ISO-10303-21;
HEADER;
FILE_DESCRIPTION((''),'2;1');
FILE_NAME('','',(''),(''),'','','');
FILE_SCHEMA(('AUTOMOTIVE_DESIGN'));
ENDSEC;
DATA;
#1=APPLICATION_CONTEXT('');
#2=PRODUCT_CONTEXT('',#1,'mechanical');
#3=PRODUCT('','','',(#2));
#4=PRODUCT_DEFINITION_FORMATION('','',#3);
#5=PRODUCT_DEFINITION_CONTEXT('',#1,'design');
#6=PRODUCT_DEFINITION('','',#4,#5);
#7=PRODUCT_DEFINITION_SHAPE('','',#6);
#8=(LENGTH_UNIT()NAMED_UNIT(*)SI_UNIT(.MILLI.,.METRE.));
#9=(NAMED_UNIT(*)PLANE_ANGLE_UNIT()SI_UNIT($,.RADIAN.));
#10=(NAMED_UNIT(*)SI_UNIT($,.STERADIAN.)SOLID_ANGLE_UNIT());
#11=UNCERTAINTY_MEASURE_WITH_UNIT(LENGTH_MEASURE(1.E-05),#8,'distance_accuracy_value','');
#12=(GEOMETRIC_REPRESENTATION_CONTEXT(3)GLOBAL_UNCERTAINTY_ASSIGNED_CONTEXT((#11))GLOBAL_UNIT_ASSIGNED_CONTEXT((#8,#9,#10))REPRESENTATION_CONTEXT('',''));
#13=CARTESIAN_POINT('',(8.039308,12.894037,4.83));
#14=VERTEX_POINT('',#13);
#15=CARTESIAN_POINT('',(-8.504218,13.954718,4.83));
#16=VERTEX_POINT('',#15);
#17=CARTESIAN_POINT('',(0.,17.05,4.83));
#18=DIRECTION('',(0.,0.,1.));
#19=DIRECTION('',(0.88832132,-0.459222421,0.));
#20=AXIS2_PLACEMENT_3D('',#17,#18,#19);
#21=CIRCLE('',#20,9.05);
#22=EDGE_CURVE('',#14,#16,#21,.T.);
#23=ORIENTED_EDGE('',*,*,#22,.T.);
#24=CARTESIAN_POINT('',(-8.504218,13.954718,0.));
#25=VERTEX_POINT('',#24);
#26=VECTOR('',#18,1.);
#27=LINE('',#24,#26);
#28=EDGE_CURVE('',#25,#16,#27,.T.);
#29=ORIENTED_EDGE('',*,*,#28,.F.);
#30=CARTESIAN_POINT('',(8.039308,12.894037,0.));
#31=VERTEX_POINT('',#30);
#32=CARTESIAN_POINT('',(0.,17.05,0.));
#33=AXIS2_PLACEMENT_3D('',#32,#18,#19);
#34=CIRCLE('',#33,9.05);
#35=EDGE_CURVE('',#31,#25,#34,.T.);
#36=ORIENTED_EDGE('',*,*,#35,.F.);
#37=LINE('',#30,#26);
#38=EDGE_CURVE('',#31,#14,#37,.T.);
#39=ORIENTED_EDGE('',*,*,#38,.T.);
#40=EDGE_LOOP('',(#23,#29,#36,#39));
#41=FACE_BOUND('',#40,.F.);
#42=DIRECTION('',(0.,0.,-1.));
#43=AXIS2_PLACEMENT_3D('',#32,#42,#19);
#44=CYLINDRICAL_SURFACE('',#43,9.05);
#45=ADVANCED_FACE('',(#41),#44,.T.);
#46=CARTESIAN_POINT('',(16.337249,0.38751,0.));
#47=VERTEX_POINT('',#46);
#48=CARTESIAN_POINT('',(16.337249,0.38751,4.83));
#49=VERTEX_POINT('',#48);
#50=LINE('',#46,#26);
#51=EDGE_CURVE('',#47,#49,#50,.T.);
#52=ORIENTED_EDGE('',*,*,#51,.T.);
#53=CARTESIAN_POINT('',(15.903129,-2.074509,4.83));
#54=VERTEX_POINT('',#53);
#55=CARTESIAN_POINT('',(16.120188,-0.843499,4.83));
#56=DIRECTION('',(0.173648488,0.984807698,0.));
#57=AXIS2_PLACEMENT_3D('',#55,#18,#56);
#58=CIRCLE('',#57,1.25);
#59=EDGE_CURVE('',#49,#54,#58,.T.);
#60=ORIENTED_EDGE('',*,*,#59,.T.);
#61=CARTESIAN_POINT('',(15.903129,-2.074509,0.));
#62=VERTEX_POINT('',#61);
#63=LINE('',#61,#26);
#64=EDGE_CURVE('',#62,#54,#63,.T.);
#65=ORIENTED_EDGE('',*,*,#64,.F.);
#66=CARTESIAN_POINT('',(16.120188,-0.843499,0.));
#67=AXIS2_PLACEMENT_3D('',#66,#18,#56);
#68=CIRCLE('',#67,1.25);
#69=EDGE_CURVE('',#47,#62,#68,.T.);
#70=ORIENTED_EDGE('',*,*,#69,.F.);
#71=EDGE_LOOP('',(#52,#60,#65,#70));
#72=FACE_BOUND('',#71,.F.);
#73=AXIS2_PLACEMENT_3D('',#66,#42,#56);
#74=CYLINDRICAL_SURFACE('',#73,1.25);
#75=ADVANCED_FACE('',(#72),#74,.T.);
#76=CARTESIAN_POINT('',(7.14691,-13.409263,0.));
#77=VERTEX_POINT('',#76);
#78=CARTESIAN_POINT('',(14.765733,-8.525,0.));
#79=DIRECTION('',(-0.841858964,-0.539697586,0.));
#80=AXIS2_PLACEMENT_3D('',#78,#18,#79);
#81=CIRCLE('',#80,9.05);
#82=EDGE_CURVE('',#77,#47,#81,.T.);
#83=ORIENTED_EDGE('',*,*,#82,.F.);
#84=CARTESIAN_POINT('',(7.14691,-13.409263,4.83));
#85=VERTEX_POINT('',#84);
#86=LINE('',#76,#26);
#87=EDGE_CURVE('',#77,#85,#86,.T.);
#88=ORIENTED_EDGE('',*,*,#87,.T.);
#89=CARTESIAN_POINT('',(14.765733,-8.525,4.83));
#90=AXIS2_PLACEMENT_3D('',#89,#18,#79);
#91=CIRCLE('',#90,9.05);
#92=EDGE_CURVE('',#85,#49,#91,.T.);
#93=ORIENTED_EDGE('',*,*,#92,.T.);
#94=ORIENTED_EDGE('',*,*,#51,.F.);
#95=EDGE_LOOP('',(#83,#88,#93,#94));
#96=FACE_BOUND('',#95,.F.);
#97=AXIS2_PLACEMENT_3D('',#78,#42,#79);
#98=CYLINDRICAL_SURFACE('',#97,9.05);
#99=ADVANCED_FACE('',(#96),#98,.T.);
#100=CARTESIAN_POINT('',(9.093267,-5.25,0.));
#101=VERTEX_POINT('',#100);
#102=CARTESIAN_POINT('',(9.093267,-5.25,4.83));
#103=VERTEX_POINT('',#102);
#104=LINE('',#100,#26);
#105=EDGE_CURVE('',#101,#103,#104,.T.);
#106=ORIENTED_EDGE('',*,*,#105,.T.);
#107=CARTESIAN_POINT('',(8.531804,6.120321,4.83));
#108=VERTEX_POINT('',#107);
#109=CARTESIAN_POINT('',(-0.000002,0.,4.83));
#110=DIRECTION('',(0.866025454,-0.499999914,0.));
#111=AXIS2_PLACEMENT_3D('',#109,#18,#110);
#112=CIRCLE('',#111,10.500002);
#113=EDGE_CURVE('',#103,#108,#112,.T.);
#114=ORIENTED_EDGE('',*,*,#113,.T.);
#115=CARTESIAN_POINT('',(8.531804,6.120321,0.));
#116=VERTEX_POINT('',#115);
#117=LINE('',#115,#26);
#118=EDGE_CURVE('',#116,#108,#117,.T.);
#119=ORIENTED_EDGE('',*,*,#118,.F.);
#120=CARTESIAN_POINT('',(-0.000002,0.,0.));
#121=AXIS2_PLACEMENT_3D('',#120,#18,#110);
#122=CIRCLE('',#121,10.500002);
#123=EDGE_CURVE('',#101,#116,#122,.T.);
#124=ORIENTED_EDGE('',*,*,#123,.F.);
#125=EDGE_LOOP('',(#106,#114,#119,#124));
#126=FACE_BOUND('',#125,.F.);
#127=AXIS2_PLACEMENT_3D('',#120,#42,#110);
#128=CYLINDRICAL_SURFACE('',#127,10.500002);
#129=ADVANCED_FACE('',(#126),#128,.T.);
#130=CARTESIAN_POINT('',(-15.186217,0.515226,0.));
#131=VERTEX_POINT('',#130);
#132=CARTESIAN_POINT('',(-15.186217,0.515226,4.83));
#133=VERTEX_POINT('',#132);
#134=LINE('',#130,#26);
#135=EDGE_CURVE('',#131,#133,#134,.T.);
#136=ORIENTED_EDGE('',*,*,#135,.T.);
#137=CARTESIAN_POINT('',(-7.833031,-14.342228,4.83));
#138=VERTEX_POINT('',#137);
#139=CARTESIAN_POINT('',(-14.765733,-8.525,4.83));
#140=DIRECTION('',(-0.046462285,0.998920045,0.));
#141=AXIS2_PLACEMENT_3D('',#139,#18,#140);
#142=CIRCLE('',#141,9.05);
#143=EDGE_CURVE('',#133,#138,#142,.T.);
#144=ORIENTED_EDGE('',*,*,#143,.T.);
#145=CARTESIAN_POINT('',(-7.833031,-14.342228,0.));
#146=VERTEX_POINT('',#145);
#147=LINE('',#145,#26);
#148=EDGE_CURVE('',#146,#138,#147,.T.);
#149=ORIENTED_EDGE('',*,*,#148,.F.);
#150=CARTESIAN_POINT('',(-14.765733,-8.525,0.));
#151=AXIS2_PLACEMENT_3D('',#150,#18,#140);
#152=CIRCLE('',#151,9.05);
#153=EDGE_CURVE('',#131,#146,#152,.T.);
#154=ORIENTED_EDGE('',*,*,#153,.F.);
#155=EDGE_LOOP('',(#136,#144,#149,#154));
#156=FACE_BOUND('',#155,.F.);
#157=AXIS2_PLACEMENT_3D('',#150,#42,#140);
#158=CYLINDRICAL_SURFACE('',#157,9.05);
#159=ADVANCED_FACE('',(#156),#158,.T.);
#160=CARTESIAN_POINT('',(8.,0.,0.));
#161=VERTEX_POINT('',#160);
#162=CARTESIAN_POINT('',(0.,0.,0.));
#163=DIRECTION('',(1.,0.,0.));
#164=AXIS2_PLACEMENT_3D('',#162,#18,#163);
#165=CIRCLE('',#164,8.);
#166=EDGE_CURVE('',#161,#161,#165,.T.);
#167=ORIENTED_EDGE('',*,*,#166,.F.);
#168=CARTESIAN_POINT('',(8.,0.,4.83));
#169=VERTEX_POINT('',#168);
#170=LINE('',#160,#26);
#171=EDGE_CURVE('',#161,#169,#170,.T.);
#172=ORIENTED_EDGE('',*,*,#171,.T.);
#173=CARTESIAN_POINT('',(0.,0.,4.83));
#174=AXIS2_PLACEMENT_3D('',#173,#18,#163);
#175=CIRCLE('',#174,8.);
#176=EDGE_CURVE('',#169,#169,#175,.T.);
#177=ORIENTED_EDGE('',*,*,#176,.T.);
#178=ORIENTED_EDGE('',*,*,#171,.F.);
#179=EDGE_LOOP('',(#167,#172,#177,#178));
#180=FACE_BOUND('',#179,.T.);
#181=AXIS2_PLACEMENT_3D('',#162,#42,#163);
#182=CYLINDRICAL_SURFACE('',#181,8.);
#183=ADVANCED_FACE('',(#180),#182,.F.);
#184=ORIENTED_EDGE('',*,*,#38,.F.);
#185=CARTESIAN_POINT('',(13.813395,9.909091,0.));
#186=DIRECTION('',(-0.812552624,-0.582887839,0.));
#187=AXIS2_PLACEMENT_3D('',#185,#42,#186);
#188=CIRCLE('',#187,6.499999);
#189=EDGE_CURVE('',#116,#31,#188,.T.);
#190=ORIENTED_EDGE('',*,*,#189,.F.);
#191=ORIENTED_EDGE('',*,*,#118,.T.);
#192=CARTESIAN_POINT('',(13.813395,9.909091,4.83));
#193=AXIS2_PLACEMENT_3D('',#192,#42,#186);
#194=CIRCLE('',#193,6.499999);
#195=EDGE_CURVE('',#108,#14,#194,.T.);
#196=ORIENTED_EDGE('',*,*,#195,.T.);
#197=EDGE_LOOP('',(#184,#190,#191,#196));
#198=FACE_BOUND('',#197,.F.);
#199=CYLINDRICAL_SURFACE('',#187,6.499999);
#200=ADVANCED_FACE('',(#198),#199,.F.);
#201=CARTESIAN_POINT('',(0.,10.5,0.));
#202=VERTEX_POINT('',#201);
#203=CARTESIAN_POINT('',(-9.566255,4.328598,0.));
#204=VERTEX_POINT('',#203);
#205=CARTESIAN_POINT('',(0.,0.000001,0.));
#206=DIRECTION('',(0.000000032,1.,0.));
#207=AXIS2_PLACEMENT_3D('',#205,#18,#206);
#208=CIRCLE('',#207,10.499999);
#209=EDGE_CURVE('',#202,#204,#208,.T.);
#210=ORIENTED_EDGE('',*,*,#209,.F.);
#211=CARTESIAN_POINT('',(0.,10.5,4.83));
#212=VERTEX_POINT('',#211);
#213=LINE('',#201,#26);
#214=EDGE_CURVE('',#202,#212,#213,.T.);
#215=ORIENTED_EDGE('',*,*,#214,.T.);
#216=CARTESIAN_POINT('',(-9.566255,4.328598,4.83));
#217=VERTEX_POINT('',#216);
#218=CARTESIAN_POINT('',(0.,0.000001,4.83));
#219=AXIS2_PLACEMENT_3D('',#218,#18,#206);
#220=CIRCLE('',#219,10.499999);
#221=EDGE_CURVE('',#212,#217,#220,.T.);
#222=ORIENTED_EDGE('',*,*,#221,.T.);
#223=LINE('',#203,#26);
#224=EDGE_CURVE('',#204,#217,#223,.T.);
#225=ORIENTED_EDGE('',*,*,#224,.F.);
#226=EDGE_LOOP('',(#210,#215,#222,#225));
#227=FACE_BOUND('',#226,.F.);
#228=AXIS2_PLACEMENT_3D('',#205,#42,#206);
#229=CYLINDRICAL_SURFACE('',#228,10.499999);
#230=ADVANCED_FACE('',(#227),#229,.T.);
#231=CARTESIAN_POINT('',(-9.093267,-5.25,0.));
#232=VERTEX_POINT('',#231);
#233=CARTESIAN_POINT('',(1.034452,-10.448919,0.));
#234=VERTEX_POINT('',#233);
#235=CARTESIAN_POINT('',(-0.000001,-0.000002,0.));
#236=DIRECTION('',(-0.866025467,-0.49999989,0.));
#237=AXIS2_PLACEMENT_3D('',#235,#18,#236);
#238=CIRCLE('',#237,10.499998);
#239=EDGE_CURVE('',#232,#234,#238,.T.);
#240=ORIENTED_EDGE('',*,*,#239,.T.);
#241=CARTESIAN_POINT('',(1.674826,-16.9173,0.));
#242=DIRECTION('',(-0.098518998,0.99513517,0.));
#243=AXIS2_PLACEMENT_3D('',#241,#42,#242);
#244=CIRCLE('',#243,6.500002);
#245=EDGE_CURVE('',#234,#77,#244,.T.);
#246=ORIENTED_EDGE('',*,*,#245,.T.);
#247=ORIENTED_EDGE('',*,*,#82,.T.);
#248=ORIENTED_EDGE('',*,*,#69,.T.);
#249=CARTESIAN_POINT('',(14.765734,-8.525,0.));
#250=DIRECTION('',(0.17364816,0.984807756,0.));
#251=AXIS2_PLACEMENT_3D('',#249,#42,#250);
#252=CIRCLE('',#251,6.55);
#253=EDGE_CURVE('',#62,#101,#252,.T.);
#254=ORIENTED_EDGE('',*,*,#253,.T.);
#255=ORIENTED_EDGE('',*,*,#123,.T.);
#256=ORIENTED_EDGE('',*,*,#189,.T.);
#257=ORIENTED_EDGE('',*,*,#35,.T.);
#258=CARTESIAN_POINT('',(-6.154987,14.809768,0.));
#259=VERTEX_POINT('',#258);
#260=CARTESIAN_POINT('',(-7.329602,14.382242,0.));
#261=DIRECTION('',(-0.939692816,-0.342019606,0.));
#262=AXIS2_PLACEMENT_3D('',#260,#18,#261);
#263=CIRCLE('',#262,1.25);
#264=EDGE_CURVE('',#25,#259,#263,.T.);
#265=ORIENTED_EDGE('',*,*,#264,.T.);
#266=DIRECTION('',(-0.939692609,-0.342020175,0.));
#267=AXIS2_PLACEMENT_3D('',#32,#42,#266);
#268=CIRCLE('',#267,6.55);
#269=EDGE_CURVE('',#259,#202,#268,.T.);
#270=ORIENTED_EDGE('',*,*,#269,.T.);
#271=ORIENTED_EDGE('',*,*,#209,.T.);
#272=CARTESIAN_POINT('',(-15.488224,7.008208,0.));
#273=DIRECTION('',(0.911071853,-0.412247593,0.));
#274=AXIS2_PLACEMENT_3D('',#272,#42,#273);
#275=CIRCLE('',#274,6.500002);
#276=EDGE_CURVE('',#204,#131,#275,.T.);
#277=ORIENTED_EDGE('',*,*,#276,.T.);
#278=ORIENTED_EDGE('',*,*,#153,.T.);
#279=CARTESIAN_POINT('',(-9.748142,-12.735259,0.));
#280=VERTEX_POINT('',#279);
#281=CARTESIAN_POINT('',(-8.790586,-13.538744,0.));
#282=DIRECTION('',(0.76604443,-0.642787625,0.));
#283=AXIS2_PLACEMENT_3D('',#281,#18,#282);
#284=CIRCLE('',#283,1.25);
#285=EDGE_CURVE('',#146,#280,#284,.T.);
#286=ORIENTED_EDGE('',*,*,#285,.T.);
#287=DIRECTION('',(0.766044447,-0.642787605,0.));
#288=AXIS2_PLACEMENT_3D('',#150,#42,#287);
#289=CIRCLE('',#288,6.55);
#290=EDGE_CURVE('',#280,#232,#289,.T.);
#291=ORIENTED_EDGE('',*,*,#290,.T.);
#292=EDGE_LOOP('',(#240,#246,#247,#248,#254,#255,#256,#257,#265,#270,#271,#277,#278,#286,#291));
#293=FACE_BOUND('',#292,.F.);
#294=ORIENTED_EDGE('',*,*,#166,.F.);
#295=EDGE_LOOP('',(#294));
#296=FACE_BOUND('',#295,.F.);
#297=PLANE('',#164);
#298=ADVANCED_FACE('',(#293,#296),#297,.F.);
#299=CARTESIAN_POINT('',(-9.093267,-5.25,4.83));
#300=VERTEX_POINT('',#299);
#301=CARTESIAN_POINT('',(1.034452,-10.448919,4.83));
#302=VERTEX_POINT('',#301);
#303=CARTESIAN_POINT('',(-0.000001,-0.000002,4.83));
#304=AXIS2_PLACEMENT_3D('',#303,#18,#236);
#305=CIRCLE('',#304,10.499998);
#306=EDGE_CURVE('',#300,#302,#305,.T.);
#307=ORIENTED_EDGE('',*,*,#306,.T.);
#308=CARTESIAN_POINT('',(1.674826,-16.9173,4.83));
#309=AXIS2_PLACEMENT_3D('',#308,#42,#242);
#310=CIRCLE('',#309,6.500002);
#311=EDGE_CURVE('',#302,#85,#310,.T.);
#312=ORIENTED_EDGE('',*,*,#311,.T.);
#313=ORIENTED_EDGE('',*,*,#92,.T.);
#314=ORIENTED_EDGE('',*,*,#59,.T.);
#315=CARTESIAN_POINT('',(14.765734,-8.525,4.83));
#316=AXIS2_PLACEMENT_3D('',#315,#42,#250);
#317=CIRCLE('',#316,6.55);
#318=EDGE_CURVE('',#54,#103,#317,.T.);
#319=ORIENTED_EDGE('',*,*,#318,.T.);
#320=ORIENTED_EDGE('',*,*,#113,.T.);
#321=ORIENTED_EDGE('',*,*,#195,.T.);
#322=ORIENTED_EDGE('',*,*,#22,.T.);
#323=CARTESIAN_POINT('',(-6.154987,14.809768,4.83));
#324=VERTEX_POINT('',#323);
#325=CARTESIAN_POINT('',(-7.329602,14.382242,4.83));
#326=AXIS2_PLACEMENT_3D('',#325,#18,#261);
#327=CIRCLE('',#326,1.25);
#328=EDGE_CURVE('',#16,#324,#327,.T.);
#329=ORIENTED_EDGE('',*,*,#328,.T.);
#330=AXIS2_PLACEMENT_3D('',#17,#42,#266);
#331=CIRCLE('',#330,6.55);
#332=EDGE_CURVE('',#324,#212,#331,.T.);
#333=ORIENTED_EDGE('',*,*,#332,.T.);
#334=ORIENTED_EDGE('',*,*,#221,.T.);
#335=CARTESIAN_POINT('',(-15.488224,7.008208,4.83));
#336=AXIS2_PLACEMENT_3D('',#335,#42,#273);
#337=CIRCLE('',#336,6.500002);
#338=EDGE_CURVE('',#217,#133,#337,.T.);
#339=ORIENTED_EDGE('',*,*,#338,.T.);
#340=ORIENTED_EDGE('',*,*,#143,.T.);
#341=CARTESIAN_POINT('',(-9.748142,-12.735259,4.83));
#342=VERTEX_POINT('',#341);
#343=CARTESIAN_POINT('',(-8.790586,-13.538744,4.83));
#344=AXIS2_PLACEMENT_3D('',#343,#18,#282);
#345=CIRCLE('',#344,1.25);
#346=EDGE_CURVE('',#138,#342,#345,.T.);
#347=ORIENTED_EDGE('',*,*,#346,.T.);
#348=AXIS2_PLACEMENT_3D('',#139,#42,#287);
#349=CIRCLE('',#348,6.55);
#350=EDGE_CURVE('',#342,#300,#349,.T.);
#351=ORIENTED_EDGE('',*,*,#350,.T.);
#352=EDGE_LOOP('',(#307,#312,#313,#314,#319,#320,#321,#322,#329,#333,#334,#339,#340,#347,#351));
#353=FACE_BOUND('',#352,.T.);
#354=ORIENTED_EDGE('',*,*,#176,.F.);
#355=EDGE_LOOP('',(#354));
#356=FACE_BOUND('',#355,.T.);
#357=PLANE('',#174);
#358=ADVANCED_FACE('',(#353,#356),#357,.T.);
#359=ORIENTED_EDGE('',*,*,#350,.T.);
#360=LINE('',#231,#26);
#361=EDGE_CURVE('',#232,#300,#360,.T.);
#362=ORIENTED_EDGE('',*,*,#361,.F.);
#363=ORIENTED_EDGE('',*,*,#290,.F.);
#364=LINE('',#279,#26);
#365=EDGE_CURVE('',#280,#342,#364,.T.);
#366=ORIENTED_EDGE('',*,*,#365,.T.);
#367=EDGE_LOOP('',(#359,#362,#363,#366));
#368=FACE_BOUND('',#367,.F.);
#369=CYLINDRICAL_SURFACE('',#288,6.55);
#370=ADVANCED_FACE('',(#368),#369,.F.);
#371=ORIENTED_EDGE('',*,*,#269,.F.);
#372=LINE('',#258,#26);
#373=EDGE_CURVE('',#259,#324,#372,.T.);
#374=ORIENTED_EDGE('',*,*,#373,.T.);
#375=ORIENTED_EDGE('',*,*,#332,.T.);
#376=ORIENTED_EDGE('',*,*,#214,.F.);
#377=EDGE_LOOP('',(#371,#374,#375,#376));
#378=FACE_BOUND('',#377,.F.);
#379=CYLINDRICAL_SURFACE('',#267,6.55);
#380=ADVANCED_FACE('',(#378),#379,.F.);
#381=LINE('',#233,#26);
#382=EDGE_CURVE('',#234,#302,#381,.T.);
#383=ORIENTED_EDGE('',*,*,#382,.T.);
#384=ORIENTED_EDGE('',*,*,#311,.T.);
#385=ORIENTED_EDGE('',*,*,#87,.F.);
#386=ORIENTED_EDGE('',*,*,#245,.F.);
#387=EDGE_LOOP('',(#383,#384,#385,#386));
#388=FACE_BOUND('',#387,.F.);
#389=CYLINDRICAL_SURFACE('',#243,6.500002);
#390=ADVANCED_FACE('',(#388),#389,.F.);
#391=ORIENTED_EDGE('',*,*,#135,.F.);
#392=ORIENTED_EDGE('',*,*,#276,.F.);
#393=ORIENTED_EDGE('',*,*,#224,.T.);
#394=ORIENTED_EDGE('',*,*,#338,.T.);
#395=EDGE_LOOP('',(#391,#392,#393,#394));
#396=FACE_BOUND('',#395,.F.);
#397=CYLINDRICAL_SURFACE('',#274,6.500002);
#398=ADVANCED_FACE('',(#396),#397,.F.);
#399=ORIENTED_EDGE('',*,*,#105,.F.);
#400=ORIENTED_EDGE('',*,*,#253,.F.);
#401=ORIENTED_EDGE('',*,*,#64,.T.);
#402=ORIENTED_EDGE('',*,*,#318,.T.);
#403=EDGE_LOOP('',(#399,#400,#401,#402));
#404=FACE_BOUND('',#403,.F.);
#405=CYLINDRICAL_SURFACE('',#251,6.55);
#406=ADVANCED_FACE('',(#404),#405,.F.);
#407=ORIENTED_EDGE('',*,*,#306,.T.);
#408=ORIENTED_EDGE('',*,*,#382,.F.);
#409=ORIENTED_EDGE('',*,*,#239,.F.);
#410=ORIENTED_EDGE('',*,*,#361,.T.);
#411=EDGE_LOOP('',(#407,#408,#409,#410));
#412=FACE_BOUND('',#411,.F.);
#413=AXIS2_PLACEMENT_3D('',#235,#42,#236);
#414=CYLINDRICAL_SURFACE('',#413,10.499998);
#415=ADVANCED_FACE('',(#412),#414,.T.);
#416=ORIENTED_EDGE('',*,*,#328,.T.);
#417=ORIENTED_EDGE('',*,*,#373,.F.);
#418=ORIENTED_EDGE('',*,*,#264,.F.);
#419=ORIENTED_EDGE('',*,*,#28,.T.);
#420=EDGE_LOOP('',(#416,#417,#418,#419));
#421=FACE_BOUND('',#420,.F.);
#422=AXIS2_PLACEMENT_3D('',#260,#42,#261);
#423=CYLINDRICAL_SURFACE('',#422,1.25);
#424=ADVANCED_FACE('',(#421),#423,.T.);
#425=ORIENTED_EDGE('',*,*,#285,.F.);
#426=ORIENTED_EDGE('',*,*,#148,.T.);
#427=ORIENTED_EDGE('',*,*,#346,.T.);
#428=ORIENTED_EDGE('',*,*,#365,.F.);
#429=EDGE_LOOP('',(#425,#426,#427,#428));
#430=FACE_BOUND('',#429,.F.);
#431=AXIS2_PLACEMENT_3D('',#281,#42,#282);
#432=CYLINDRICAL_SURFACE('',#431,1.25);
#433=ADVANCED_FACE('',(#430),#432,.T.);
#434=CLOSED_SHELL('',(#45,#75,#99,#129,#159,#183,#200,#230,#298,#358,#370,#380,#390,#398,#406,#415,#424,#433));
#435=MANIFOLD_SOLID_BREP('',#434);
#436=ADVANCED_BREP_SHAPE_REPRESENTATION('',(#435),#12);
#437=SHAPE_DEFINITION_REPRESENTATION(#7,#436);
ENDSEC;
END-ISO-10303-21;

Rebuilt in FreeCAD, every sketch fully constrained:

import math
import FreeCAD as App
import Part
import Sketcher

V = App.Vector

doc = App.newDocument("Part")
body = doc.addObject("PartDesign::Body", "Body")

sketch1 = body.newObject("Sketcher::SketchObject", "Sketch")
sketch1.AttachmentSupport = (doc.getObject("XY_Plane"), [""])
sketch1.MapMode = "FlatFace"
sketch1.addGeometry(Part.ArcOfCircle(Part.Circle(V(0, 17.1, 0), V(0, 0, 1), 6.6), math.radians(-90), math.radians(200)), False)
sketch1.addGeometry(Part.ArcOfCircle(Part.Circle(V(0, 0, 0), V(0, 0, 1), 10.5), math.radians(90), math.radians(156)), False)
sketch1.addGeometry(Part.ArcOfCircle(Part.Circle(V(-15.5, 7, 0), V(0, 0, 1), 6.5), math.radians(-87), math.radians(-24)), False)
sketch1.addGeometry(Part.ArcOfCircle(Part.Circle(V(-14.8, -8.5, 0), V(0, 0, 1), 9), math.radians(93), math.radians(320)), False)
sketch1.addGeometry(Part.ArcOfCircle(Part.Circle(V(-8.8, -13.5, 0), V(0, 0, 1), 1.2), math.radians(-40), math.radians(140)), False)
sketch1.addGeometry(Part.ArcOfCircle(Part.Circle(V(-14.8, -8.5, 0), V(0, 0, 1), 6.5), math.radians(30), math.radians(320)), False)
sketch1.addGeometry(Part.ArcOfCircle(Part.Circle(V(0, 0, 0), V(0, 0, 1), 10.5), math.radians(-150), math.radians(-84)), False)
sketch1.addGeometry(Part.ArcOfCircle(Part.Circle(V(1.7, -16.9, 0), V(0, 0, 1), 6.5), math.radians(33), math.radians(96)), False)
sketch1.addGeometry(Part.ArcOfCircle(Part.Circle(V(14.8, -8.5, 0), V(0, 0, 1), 9), math.radians(-147), math.radians(80)), False)
sketch1.addGeometry(Part.ArcOfCircle(Part.Circle(V(16.1, -0.8, 0), V(0, 0, 1), 1.2), math.radians(80), math.radians(260)), False)
sketch1.addGeometry(Part.ArcOfCircle(Part.Circle(V(14.8, -8.5, 0), V(0, 0, 1), 6.6), math.radians(150), math.radians(440)), False)
sketch1.addGeometry(Part.ArcOfCircle(Part.Circle(V(0, 0, 0), V(0, 0, 1), 10.5), math.radians(-30), math.radians(36)), False)
sketch1.addGeometry(Part.ArcOfCircle(Part.Circle(V(13.8, 9.9, 0), V(0, 0, 1), 6.5), math.radians(153), math.radians(216)), False)
sketch1.addGeometry(Part.ArcOfCircle(Part.Circle(V(0, 17, 0), V(0, 0, 1), 9), math.radians(-27), math.radians(200)), False)
sketch1.addGeometry(Part.ArcOfCircle(Part.Circle(V(-7.3, 14.4, 0), V(0, 0, 1), 1.2), math.radians(-160), math.radians(20)), False)
sketch1.addGeometry(Part.Circle(V(0, 0, 0), V(0, 0, 1), 8), False)
sketch1.addConstraint(Sketcher.Constraint("Tangent", 0, 1, 1, 1))
sketch1.addConstraint(Sketcher.Constraint("Tangent", 1, 2, 2, 2))
sketch1.addConstraint(Sketcher.Constraint("Tangent", 2, 1, 3, 1))
sketch1.addConstraint(Sketcher.Constraint("Tangent", 3, 2, 4, 1))
sketch1.addConstraint(Sketcher.Constraint("Tangent", 4, 2, 5, 2))
sketch1.addConstraint(Sketcher.Constraint("Tangent", 5, 1, 6, 1))
sketch1.addConstraint(Sketcher.Constraint("Tangent", 6, 2, 7, 2))
sketch1.addConstraint(Sketcher.Constraint("Tangent", 7, 1, 8, 1))
sketch1.addConstraint(Sketcher.Constraint("Tangent", 8, 2, 9, 1))
sketch1.addConstraint(Sketcher.Constraint("Tangent", 9, 2, 10, 2))
sketch1.addConstraint(Sketcher.Constraint("Tangent", 10, 1, 11, 1))
sketch1.addConstraint(Sketcher.Constraint("Tangent", 11, 2, 12, 2))
sketch1.addConstraint(Sketcher.Constraint("Tangent", 12, 1, 13, 1))
sketch1.addConstraint(Sketcher.Constraint("Tangent", 13, 2, 14, 1))
sketch1.addConstraint(Sketcher.Constraint("Tangent", 14, 2, 0, 2))
sketch1.addConstraint(Sketcher.Constraint("Coincident", 1, 3, -1, 1))
sketch1.addConstraint(Sketcher.Constraint("Coincident", 6, 3, -1, 1))
sketch1.addConstraint(Sketcher.Constraint("Coincident", 11, 3, -1, 1))
sketch1.addConstraint(Sketcher.Constraint("Coincident", 15, 3, -1, 1))
sketch1.addConstraint(Sketcher.Constraint("Coincident", 5, 3, 3, 3))
sketch1.addConstraint(Sketcher.Constraint("Coincident", 10, 3, 8, 3))
sketch1.addConstraint(Sketcher.Constraint("Coincident", 13, 3, 0, 3))
sketch1.addConstraint(Sketcher.Constraint("Equal", 0, 5))
sketch1.addConstraint(Sketcher.Constraint("Equal", 1, 6))
sketch1.addConstraint(Sketcher.Constraint("Equal", 2, 7))
sketch1.addConstraint(Sketcher.Constraint("Equal", 3, 8))
sketch1.addConstraint(Sketcher.Constraint("Equal", 4, 9))
sketch1.addConstraint(Sketcher.Constraint("Equal", 8, 13))
sketch1.addConstraint(Sketcher.Constraint("Symmetric", 3, 3, 8, 3, -2))
sketch1.addConstraint(Sketcher.Constraint("PointOnObject", 0, 3, -2))
sketch1.addConstraint(Sketcher.Constraint("Diameter", 15, 16.0))
sketch1.addConstraint(Sketcher.Constraint("Radius", 1, 10.499999))
sketch1.addConstraint(Sketcher.Constraint("Radius", 2, 6.500002))
sketch1.addConstraint(Sketcher.Constraint("Radius", 12, 6.499999))
sketch1.addConstraint(Sketcher.Constraint("Radius", 0, 6.55))
sketch1.addConstraint(Sketcher.Constraint("Radius", 3, 9.05))
sketch1.addConstraint(Sketcher.Constraint("DistanceY", 5, 1, -1, 1, 5.25))
sketch1.addConstraint(Sketcher.Constraint("DistanceY", 9, 3, -1, 1, 0.843499))
sketch1.addConstraint(Sketcher.Constraint("DistanceX", 14, 3, 11, 3, 7.3296))
sketch1.addConstraint(Sketcher.Constraint("DistanceX", 5, 3, 3, 2, 6.932702))
pad1 = body.newObject("PartDesign::Pad", "Pad")
pad1.Profile = sketch1
pad1.Length = 4.83

doc.recompute()
